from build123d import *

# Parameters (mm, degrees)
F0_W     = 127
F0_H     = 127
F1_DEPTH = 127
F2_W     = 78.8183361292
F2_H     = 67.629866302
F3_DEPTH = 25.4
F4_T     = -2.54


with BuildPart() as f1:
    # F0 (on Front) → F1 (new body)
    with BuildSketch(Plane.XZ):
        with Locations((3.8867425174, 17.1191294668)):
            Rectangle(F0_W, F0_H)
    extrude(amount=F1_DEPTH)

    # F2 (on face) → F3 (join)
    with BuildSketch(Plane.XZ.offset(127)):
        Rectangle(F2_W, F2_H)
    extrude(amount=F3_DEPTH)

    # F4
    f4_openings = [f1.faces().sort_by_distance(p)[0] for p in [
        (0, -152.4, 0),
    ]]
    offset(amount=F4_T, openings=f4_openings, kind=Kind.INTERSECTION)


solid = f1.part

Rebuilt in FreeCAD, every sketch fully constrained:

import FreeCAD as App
import Part
import Sketcher
from FreeCAD import Vector
Q = App.Units.Quantity


def faces_at(feature, points):
    """Names of the faces that lie closest to the given points."""
    faces = feature.Shape.Faces
    near = lambda p: min(range(len(faces)), key=lambda i: faces[i].distToShape(Part.Vertex(*p))[0])
    return sorted({f"Face{near(p) + 1}" for p in points})

doc = App.newDocument("Part")
params = doc.addObject("Spreadsheet::Sheet", "Params")
for row, (alias, value) in enumerate([
    ("sketch1_width", "5 in"),
    ("pad1_length", "5 in"),
    ("pad2_length", "1 in"),
    ("thickness_wall", "0.1 in"),
], start=1):
    params.set(f"A{row}", alias)
    params.set(f"B{row}", "=" + value)
    params.setAlias(f"B{row}", alias)

body = doc.addObject("PartDesign::Body", "Body")

# Sketch on XZ plane
sketch1 = doc.addObject("Sketcher::SketchObject", "Sketch")
body.addObject(sketch1)
sketch1.AttachmentSupport = (doc.XZ_Plane, [""])
sketch1.MapMode = "FlatFace"
sketch1.addGeometry([
    Part.LineSegment(Vector(-60, 81, 0), Vector(-60, -46, 0)),
    Part.LineSegment(Vector(-60, -46, 0), Vector(67, -46, 0)),
    Part.LineSegment(Vector(67, -46, 0), Vector(67, 81, 0)),
    Part.LineSegment(Vector(67, 81, 0), Vector(-60, 81, 0)),
], False)
sketch1.addConstraint([
    Sketcher.Constraint("Coincident", 0, 2, 1, 1),
    Sketcher.Constraint("Coincident", 1, 2, 2, 1),
    Sketcher.Constraint("Coincident", 2, 2, 3, 1),
    Sketcher.Constraint("Coincident", 3, 2, 0, 1),
    Sketcher.Constraint("Vertical", 0),
    Sketcher.Constraint("Horizontal", 1),
    Sketcher.Constraint("Vertical", 2),
    Sketcher.Constraint("Horizontal", 3),
    Sketcher.Constraint("Equal", 3, 0),
    Sketcher.Constraint("DistanceX", 1, 1, 1, 2, Q("5 in")),
    Sketcher.Constraint("DistanceY", 0, 2, -1, 1, Q("46.380871 mm")),
    Sketcher.Constraint("DistanceX", 0, 2, -1, 1, Q("59.613257 mm")),
])
sketch1.setExpression("Constraints[9]", "Params.sketch1_width")
pad1 = doc.addObject("PartDesign::Pad", "Pad")
body.addObject(pad1)
pad1.Profile = sketch1
pad1.setExpression("Length", "Params.pad1_length")

# Sketch on XZ plane
sketch2 = doc.addObject("Sketcher::SketchObject", "Sketch001")
body.addObject(sketch2)
sketch2.AttachmentSupport = (doc.XZ_Plane, [""])
sketch2.MapMode = "FlatFace"
sketch2.AttachmentOffset = App.Placement(Vector(0, 0, 5 * 25.4), App.Rotation())
sketch2.addGeometry([
    Part.LineSegment(Vector(-39, 34, 0), Vector(-39, -34, 0)),
    Part.LineSegment(Vector(-39, -34, 0), Vector(39, -34, 0)),
    Part.LineSegment(Vector(39, -34, 0), Vector(39, 34, 0)),
    Part.LineSegment(Vector(39, 34, 0), Vector(-39, 34, 0)),
], False)
sketch2.addConstraint([
    Sketcher.Constraint("Coincident", 0, 2, 1, 1),
    Sketcher.Constraint("Coincident", 1, 2, 2, 1),
    Sketcher.Constraint("Coincident", 2, 2, 3, 1),
    Sketcher.Constraint("Coincident", 3, 2, 0, 1),
    Sketcher.Constraint("Vertical", 0),
    Sketcher.Constraint("Horizontal", 1),
    Sketcher.Constraint("Vertical", 2),
    Sketcher.Constraint("Horizontal", 3),
    Sketcher.Constraint("Symmetric", 0, 2, 2, 2, -1, 1),
    Sketcher.Constraint("DistanceX", 1, 1, 1, 2, Q("78.818336 mm")),
    Sketcher.Constraint("DistanceY", 0, 2, 0, 1, Q("67.629866 mm")),
])
pad2 = doc.addObject("PartDesign::Pad", "Pad001")
body.addObject(pad2)
pad2.Profile = sketch2
pad2.setExpression("Length", "Params.pad2_length")
doc.recompute()

thickness = doc.addObject("PartDesign::Thickness", "Thickness")
body.addObject(thickness)
thickness.Base = (pad2, faces_at(pad2, [(0, -152.4, 0)]))
thickness.setExpression("Value", "Params.thickness_wall")
thickness.Reversed = True
thickness.Join = "Intersection"

doc.recompute()
